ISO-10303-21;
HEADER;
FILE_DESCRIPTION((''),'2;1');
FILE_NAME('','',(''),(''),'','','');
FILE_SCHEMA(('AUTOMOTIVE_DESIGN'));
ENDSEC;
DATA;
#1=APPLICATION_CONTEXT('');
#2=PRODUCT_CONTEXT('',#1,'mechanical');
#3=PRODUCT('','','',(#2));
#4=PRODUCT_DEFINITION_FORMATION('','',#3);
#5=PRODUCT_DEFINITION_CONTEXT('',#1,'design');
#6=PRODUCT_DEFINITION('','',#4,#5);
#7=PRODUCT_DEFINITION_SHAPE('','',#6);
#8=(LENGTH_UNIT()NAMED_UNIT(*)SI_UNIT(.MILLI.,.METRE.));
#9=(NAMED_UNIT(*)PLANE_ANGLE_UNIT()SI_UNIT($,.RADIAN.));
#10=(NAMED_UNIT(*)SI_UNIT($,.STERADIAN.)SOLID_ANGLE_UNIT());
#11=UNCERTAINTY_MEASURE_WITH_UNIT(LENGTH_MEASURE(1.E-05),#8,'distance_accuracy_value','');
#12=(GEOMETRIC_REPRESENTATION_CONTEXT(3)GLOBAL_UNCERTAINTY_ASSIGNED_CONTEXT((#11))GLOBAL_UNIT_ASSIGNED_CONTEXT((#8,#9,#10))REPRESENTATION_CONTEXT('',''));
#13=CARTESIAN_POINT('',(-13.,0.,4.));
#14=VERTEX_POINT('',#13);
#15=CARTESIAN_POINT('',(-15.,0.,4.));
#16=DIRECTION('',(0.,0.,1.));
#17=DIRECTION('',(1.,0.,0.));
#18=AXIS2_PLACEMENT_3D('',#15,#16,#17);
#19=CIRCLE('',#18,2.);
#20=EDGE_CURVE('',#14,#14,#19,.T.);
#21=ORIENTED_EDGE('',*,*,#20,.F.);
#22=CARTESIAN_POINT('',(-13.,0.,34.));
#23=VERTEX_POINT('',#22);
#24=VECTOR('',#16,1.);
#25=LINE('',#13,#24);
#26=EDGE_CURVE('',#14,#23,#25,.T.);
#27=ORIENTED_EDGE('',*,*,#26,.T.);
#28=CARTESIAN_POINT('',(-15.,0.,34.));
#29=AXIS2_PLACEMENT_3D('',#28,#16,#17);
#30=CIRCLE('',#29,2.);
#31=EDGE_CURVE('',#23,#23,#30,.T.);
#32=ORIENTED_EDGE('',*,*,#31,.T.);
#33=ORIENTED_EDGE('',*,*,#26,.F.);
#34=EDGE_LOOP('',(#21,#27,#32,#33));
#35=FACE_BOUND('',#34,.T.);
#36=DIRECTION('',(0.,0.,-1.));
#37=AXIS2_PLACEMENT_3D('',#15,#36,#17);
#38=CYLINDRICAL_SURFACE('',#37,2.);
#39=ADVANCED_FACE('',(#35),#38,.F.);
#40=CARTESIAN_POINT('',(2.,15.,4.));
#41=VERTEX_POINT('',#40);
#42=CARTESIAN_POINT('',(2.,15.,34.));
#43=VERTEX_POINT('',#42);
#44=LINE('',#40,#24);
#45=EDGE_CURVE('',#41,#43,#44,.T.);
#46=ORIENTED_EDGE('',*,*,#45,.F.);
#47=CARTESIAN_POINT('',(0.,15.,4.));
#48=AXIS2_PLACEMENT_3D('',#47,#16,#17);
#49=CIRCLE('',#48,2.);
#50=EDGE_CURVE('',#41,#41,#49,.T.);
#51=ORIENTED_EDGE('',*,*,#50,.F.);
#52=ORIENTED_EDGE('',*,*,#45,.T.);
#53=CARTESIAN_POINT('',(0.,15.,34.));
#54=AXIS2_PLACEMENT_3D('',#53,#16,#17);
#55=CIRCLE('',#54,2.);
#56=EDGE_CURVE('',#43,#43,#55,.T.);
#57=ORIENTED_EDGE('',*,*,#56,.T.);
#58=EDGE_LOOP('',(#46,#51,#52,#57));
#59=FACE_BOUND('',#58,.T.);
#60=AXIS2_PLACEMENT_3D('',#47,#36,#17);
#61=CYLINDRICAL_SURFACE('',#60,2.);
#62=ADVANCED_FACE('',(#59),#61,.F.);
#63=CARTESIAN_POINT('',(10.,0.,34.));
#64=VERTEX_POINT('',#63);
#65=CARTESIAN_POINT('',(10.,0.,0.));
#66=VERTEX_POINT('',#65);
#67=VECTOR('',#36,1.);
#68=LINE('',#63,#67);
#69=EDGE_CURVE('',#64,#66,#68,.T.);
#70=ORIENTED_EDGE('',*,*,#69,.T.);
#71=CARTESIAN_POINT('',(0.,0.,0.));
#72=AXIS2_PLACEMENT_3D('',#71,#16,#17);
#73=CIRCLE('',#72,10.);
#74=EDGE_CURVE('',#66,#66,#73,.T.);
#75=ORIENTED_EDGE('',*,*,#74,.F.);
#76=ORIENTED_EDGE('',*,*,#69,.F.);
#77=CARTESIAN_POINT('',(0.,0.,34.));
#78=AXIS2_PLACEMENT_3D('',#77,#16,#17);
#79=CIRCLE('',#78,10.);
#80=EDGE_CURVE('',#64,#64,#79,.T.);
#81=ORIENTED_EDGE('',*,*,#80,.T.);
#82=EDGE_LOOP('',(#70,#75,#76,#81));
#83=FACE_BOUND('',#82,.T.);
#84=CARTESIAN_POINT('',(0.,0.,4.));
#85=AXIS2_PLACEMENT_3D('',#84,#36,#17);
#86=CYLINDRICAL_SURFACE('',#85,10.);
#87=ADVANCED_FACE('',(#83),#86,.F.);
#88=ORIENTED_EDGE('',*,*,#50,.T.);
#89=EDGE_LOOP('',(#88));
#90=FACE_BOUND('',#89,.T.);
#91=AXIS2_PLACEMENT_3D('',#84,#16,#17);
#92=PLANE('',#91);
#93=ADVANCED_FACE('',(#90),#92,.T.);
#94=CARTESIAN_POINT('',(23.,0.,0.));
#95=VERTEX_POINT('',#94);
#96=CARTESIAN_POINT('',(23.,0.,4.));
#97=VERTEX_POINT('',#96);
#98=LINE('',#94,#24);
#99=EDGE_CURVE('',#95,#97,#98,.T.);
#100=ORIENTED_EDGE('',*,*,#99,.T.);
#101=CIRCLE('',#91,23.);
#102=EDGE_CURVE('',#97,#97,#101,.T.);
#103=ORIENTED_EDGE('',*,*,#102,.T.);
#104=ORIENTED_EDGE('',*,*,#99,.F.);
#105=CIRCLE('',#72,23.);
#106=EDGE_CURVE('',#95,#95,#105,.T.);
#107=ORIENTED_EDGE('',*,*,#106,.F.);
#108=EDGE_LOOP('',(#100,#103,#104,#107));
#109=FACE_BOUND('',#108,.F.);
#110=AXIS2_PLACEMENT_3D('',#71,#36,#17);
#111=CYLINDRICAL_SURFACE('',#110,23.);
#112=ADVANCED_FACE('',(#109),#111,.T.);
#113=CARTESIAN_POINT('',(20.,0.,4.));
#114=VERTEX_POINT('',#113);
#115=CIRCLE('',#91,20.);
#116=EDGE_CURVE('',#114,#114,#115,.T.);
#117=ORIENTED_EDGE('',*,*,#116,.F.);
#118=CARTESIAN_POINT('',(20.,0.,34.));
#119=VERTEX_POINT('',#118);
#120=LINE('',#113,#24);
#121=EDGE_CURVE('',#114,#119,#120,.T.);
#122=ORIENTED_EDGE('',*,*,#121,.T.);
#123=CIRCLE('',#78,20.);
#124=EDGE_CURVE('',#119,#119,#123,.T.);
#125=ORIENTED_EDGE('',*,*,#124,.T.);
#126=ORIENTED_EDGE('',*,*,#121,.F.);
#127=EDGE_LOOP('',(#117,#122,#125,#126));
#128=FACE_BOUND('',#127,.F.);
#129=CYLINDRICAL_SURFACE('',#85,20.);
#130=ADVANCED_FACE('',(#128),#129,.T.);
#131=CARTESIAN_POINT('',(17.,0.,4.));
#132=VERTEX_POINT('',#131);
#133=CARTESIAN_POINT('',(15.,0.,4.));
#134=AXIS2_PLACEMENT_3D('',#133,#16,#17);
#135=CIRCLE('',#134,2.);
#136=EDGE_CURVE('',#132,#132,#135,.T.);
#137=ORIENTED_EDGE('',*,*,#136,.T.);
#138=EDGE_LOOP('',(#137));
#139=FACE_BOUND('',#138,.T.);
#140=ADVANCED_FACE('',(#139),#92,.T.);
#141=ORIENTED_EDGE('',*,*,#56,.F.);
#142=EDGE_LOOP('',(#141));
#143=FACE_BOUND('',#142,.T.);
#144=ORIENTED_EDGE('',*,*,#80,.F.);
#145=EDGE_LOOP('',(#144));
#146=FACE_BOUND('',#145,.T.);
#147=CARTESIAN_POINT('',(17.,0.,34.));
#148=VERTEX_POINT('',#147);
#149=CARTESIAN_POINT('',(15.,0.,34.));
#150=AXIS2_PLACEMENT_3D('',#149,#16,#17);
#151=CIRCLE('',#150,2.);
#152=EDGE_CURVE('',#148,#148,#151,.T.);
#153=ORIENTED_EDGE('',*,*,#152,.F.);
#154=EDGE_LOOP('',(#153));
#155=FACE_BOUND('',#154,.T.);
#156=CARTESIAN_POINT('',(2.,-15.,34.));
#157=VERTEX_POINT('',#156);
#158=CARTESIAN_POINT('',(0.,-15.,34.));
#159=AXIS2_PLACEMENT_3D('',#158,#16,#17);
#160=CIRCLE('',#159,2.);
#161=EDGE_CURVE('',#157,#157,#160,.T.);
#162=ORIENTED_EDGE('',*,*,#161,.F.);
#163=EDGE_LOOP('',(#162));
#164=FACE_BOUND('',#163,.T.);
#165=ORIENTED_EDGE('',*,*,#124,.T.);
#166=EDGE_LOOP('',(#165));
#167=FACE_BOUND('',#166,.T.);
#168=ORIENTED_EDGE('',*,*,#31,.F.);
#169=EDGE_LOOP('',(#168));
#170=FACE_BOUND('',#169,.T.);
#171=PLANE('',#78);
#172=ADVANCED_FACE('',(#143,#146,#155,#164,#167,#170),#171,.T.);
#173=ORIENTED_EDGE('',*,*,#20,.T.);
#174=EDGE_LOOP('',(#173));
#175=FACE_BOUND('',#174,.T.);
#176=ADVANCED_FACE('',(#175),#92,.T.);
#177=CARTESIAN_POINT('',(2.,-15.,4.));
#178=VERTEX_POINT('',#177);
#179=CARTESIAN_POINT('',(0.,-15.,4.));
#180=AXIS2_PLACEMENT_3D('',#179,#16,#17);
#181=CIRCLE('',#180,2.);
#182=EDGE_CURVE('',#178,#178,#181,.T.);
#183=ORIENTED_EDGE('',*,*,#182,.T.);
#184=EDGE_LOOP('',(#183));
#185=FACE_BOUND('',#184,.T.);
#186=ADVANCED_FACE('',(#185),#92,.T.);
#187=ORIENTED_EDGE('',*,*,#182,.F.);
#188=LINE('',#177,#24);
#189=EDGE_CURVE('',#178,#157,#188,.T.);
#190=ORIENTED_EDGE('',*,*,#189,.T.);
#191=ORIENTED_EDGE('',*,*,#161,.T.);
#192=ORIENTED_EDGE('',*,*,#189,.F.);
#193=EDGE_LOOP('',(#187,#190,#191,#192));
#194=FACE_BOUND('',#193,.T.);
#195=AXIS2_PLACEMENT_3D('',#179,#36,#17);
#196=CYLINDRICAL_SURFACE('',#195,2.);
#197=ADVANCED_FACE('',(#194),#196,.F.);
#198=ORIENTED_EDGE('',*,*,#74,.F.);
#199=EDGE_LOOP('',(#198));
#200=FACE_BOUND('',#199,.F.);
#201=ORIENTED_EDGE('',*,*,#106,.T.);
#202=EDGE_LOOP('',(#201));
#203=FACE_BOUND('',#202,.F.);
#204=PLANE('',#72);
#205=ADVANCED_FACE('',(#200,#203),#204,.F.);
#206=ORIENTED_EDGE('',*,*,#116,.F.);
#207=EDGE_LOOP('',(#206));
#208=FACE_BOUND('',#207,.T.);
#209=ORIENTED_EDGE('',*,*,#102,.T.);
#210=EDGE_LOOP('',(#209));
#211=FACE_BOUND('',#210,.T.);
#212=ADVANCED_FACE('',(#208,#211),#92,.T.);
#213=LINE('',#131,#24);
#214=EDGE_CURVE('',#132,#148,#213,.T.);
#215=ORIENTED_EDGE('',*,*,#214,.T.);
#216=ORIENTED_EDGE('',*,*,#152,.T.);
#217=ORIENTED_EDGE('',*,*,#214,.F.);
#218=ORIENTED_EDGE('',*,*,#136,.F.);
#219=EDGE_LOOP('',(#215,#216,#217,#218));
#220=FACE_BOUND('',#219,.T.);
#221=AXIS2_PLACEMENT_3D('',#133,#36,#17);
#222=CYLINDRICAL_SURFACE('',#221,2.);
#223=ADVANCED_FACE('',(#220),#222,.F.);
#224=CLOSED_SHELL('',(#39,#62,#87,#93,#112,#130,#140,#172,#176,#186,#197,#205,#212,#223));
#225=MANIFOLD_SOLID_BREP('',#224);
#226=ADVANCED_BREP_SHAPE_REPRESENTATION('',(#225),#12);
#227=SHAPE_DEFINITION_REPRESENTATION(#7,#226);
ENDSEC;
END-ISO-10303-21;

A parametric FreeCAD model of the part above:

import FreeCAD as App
import Part
import Sketcher
from FreeCAD import Vector

doc = App.newDocument("Part")
body = doc.addObject("PartDesign::Body", "Body")

sketch1 = doc.addObject("Sketcher::SketchObject", "Sketch")
body.addObject(sketch1)
sketch1.AttachmentSupport = (doc.XY_Plane, [""])
sketch1.MapMode = "FlatFace"
sketch1.addGeometry([
    Part.Circle(Vector(0, 0, 0), Vector(0, 0, 1), 23),
    Part.Circle(Vector(0, 0, 0), Vector(0, 0, 1), 10),
], False)
sketch1.addConstraint([
    Sketcher.Constraint("Coincident", 0, 3, -1, 1),
    Sketcher.Constraint("Coincident", 1, 3, -1, 1),
    Sketcher.Constraint("Diameter", 0, 46.0),
    Sketcher.Constraint("Diameter", 1, 20.0),
])
pad1 = doc.addObject("PartDesign::Pad", "Pad")
body.addObject(pad1)
pad1.Profile = sketch1
pad1.Length = 4

sketch2 = doc.addObject("Sketcher::SketchObject", "Sketch001")
body.addObject(sketch2)
sketch2.AttachmentSupport = (doc.XY_Plane, [""])
sketch2.MapMode = "FlatFace"
sketch2.AttachmentOffset = App.Placement(Vector(0, 0, 4), App.Rotation())
sketch2.addGeometry([
    Part.Circle(Vector(0, 0, 0), Vector(0, 0, 1), 20),
    Part.Circle(Vector(0, -15, 0), Vector(0, 0, 1), 2),
    Part.Circle(Vector(-15, 0, 0), Vector(0, 0, 1), 2),
    Part.Circle(Vector(0, 0, 0), Vector(0, 0, 1), 10),
    Part.Circle(Vector(15, 0, 0), Vector(0, 0, 1), 2),
    Part.Circle(Vector(0, 15, 0), Vector(0, 0, 1), 2),
], False)
sketch2.addConstraint([
    Sketcher.Constraint("Coincident", 0, 3, -1, 1),
    Sketcher.Constraint("Coincident", 3, 3, -1, 1),
    Sketcher.Constraint("Equal", 1, 2),
    Sketcher.Constraint("Equal", 2, 4),
    Sketcher.Constraint("Equal", 4, 5),
    Sketcher.Constraint("Symmetric", 2, 3, 4, 3, -1, 1),
    Sketcher.Constraint("Symmetric", 1, 3, 5, 3, -1, 1),
    Sketcher.Constraint("PointOnObject", 1, 3, -2),
    Sketcher.Constraint("PointOnObject", 2, 3, -1),
    Sketcher.Constraint("Diameter", 0, 40.0),
    Sketcher.Constraint("Diameter", 1, 4.0),
    Sketcher.Constraint("Diameter", 3, 20.0),
    Sketcher.Constraint("DistanceY", 1, 3, -1, 1, 15.0),
    Sketcher.Constraint("DistanceX", 2, 3, -1, 1, 15.0),
])
pad2 = doc.addObject("PartDesign::Pad", "Pad001")
body.addObject(pad2)
pad2.Profile = sketch2
pad2.Length = 30

doc.recompute()
